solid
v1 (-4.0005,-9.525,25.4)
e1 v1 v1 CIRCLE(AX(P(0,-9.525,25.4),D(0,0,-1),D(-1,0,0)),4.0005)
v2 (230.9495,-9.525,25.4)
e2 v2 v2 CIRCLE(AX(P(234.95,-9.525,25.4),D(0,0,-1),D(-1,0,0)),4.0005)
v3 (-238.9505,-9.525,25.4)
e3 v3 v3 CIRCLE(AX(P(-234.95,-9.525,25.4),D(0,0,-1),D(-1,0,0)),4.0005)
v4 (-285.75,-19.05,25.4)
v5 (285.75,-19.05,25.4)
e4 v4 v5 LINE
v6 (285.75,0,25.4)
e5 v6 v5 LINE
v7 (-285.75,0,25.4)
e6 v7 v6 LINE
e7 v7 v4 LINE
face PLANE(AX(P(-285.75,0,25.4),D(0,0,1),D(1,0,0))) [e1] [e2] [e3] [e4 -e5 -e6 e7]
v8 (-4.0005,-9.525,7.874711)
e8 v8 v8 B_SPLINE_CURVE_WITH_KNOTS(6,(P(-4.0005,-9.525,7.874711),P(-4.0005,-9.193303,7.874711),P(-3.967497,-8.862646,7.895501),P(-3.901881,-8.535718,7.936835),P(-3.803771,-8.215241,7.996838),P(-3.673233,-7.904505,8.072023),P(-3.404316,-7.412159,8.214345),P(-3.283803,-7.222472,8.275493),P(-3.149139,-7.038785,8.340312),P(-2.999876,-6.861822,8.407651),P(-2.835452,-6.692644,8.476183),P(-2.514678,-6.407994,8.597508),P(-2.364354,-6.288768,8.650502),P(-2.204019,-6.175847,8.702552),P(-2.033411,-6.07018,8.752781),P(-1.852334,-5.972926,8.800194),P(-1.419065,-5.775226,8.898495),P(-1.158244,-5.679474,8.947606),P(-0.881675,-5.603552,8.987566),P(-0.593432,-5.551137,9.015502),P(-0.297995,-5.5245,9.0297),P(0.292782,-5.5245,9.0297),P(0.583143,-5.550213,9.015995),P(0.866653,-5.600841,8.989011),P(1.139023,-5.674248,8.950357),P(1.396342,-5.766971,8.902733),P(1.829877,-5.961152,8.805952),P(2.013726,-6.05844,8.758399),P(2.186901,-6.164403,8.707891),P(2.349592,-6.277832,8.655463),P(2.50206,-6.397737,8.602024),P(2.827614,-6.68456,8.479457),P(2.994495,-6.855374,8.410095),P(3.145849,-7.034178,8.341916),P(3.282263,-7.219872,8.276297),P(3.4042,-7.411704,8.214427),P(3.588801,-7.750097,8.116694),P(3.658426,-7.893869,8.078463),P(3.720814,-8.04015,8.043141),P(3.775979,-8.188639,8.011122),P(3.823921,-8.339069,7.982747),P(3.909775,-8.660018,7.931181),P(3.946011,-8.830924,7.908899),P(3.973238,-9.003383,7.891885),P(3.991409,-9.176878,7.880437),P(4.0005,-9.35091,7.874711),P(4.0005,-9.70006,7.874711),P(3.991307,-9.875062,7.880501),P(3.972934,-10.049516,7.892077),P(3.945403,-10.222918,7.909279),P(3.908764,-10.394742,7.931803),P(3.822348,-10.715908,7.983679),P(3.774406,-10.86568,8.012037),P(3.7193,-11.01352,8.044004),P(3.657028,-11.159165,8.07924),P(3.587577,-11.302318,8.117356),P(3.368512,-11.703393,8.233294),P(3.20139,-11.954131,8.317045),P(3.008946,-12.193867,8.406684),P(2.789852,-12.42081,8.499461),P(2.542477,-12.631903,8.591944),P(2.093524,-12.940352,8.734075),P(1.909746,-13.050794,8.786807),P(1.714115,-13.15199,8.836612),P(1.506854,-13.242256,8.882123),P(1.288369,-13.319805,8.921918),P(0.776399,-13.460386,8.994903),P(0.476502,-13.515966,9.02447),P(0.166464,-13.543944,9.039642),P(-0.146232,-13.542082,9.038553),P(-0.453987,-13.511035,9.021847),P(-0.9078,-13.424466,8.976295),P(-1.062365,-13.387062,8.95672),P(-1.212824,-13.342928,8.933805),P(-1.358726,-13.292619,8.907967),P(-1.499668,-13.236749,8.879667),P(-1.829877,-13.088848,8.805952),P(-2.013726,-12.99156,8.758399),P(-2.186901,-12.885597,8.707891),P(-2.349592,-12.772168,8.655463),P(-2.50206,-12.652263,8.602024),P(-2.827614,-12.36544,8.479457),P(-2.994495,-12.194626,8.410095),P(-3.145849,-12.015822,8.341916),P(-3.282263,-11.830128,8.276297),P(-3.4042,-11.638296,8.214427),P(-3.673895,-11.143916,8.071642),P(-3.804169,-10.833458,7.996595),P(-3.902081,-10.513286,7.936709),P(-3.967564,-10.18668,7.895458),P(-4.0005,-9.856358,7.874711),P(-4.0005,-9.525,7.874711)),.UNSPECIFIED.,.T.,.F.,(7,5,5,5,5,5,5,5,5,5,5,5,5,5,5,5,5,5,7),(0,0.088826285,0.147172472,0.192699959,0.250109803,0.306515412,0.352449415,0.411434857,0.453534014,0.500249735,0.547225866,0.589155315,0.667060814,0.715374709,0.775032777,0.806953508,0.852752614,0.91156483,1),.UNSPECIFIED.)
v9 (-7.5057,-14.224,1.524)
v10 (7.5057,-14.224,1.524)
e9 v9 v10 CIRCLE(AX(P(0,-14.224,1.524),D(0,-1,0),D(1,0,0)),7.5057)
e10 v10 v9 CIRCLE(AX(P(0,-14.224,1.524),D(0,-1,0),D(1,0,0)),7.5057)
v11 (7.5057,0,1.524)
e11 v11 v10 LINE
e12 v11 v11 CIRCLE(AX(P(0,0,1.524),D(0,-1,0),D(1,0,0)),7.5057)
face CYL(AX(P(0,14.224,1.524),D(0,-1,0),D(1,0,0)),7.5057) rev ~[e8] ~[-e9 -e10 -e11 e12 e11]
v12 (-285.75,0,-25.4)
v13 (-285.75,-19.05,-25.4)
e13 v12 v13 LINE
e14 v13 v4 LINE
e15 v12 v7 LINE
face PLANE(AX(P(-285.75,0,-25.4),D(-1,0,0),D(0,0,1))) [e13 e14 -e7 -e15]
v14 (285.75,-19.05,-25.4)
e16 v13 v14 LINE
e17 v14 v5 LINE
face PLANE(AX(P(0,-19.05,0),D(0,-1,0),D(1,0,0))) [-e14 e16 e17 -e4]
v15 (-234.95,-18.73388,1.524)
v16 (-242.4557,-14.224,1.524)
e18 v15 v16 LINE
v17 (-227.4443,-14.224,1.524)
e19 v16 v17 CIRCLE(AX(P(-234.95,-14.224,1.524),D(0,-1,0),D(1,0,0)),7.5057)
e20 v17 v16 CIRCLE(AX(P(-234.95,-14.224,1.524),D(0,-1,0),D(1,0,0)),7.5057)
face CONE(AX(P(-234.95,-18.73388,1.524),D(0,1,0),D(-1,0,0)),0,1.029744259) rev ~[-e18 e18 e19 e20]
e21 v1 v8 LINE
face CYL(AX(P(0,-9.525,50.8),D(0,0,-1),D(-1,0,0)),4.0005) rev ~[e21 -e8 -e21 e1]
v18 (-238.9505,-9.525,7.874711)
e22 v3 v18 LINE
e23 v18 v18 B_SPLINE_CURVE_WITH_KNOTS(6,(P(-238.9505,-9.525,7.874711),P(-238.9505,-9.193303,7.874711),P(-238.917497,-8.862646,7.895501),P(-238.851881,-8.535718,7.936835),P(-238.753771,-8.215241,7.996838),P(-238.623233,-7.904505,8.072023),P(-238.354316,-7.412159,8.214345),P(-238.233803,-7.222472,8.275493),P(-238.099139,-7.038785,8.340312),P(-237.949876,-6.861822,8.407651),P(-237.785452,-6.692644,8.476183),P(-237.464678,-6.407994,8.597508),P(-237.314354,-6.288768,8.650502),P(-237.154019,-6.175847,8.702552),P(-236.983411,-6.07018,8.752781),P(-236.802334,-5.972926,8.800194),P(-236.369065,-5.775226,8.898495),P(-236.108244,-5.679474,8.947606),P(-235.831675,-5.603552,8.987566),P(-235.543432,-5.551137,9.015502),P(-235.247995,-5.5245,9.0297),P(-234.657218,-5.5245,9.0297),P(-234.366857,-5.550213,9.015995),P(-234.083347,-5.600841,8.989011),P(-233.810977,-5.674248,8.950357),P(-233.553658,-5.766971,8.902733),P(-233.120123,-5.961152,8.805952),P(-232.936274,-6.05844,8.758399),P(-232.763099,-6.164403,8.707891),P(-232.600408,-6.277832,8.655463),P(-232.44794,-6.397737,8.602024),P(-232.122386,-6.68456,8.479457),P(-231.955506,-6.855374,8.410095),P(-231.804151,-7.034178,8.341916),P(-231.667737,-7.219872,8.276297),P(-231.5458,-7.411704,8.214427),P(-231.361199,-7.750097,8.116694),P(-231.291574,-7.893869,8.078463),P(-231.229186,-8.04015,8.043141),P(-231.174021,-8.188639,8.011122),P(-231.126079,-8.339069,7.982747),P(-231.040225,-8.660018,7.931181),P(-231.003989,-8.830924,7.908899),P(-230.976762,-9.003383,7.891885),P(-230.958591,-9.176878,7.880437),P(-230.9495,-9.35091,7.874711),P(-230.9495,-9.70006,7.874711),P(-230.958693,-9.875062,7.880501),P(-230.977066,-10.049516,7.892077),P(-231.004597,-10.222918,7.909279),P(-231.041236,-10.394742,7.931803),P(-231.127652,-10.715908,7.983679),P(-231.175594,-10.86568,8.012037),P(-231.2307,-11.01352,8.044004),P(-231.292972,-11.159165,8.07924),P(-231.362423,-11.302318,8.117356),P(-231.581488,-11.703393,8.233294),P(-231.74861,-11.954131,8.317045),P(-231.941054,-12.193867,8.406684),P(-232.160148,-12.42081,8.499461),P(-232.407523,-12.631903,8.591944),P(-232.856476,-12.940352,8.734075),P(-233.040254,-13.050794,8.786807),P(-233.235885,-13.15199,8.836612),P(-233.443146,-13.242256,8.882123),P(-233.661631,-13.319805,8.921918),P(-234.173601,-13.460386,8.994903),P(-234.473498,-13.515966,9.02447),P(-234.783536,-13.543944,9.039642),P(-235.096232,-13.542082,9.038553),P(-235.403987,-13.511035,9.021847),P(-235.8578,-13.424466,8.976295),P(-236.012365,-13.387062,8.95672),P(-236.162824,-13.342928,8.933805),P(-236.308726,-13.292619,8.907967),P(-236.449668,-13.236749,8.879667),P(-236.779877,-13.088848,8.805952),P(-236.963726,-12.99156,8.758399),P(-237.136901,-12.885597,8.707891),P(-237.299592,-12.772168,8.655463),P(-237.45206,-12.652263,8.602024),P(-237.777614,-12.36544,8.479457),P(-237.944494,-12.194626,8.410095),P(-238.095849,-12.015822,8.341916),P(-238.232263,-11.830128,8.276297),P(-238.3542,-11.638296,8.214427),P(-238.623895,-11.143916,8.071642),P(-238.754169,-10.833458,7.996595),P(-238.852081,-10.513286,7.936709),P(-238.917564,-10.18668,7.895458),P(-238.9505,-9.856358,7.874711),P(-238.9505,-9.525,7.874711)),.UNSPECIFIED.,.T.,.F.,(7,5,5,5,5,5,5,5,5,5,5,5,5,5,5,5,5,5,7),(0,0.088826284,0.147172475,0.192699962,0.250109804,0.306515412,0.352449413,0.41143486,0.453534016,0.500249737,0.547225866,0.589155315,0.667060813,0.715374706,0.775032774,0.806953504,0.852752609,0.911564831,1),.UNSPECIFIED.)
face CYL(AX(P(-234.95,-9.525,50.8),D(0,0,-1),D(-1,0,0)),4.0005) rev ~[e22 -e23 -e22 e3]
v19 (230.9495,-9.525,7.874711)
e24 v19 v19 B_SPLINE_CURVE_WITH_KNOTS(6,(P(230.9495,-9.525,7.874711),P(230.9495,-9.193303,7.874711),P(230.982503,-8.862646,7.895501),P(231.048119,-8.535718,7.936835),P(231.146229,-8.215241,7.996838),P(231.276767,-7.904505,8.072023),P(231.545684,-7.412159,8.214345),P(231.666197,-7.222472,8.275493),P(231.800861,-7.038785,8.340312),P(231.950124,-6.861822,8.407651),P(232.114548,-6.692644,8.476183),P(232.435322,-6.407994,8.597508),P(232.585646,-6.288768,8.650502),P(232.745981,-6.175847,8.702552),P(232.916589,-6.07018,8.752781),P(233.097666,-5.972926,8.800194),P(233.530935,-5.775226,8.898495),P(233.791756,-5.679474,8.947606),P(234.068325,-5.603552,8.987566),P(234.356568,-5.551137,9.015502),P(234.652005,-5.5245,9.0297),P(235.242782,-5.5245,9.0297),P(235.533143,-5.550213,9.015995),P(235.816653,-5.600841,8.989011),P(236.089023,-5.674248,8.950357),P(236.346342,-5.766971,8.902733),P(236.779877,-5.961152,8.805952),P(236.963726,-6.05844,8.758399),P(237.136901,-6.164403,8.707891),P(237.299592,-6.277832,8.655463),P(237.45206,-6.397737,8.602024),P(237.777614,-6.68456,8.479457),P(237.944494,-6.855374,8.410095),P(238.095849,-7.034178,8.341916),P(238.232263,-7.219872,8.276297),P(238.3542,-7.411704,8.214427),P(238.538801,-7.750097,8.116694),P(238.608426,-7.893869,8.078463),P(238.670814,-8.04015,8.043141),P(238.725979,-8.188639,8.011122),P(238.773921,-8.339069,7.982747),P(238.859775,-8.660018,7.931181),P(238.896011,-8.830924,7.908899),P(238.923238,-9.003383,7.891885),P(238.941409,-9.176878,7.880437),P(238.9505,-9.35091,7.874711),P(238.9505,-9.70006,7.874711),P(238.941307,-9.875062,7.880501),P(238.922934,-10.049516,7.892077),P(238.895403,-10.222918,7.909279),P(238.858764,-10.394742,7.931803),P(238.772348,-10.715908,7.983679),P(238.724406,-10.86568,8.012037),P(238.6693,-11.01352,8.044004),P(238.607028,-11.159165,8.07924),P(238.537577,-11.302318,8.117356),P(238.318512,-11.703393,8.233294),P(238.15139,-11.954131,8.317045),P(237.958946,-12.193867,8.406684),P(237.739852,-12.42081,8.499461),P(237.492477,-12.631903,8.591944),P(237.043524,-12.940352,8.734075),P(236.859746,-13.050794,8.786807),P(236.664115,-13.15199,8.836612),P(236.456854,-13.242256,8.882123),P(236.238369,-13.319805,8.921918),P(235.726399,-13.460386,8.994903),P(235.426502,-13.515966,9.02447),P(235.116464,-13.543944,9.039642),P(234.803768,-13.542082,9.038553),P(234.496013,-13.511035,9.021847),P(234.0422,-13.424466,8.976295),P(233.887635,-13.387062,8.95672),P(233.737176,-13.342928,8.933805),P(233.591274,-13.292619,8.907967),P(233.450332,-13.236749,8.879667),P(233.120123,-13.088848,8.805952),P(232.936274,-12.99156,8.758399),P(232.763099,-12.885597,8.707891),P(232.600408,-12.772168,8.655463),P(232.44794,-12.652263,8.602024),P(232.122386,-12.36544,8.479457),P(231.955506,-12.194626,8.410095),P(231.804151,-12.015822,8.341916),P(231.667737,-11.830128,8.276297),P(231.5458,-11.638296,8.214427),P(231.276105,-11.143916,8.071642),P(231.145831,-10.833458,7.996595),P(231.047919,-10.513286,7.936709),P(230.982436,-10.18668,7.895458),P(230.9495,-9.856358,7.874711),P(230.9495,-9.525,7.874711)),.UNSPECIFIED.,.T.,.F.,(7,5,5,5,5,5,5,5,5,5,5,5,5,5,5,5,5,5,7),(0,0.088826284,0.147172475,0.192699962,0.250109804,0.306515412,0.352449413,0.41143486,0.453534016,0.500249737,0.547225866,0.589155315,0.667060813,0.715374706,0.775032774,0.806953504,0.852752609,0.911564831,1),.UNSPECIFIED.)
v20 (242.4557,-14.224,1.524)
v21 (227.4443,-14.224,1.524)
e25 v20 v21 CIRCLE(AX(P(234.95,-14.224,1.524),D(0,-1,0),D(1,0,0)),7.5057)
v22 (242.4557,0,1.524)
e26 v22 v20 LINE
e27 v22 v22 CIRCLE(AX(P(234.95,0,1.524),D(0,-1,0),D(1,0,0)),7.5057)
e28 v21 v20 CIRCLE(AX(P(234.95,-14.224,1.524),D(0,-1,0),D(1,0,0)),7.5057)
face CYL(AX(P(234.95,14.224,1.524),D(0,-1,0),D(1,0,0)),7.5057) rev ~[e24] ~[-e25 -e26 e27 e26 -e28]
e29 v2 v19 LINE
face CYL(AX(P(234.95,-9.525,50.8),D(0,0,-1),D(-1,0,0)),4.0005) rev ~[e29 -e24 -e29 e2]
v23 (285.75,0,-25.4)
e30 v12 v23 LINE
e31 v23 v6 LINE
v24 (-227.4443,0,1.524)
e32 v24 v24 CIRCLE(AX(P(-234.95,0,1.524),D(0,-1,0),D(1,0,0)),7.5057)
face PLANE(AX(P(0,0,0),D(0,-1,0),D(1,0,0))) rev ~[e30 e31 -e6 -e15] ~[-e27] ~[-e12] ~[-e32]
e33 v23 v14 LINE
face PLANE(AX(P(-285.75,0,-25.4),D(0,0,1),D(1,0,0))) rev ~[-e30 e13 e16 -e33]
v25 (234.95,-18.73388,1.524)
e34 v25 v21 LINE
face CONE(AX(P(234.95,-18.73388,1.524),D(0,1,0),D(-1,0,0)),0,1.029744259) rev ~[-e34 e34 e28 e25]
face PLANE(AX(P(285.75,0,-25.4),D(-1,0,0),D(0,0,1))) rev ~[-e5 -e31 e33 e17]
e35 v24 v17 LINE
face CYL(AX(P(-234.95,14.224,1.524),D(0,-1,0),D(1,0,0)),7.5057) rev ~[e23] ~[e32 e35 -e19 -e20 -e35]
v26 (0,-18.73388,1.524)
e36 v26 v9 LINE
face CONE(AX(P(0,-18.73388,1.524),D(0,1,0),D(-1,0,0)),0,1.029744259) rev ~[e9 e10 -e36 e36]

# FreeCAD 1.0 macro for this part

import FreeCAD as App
import Part
import Sketcher
from FreeCAD import Vector
Q = App.Units.Quantity


def add_polygon(sketch, points):
    """Adds a closed chain of lines whose ends are joined by coincident constraints."""
    first, n = sketch.GeometryCount, len(points)
    for a, b in zip(points, points[1:] + points[:1]):
        sketch.addGeometry(Part.LineSegment(App.Vector(*a, 0), App.Vector(*b, 0)), False)
    for i in range(n):
        sketch.addConstraint(Sketcher.Constraint("Coincident", first + i, 2, first + (i + 1) % n, 1))

doc = App.newDocument("Part")
params = doc.addObject("Spreadsheet::Sheet", "Params")
for row, (alias, value) in enumerate([
    ("sketch1_height", "2 in"),
    ("sketch1_width", "22.5 in"),
    ("pad1_length", "0.75 in"),
    ("sketch2_diameter", "0.591 in"),
    ("hole_diameter", "0.591 in"),
    ("hole_depth", "0.56 in"),
    ("sketch3_diameter", "0.315 in"),
    ("hole2_diameter", "0.315 in"),
    ("hole2_depth", "1 in"),
], start=1):
    params.set(f"A{row}", alias)
    params.set(f"B{row}", "=" + value)
    params.setAlias(f"B{row}", alias)

body = doc.addObject("PartDesign::Body", "Body")

# Sketch on XZ plane
sketch1 = body.newObject("Sketcher::SketchObject", "Sketch")
sketch1.AttachmentSupport = (doc.getObject("XZ_Plane"), [""])
sketch1.MapMode = "FlatFace"
add_polygon(sketch1, [(-285.75, 25.4), (-285.75, -25.4), (285.75, -25.4), (285.75, 25.4)])  # lines 0-3
sketch1.addConstraint([
    Sketcher.Constraint("Vertical", 0),
    Sketcher.Constraint("Horizontal", 1),
    Sketcher.Constraint("Vertical", 2),
    Sketcher.Constraint("Horizontal", 3),
    Sketcher.Constraint("Symmetric", 0, 2, 2, 2, -1, 1),
    Sketcher.Constraint("DistanceY", 0, 2, 0, 1, Q("2 in")),
    Sketcher.Constraint("DistanceX", 1, 1, 1, 2, Q("22.5 in")),
])
sketch1.setExpression("Constraints[9]", "Params.sketch1_height")
sketch1.setExpression("Constraints[10]", "Params.sketch1_width")
pad1 = body.newObject("PartDesign::Pad", "Pad")
pad1.Profile = sketch1
pad1.setExpression("Length", "Params.pad1_length")

# Sketch on XZ plane
sketch2 = body.newObject("Sketcher::SketchObject", "Sketch001")
sketch2.AttachmentSupport = (doc.getObject("XZ_Plane"), [""])
sketch2.MapMode = "FlatFace"
sketch2.addGeometry([
    Part.Circle(Vector(-234.95, 1.524, 0), Vector(0, 0, 1), 7.5057),
    Part.Circle(Vector(0, 1.524, 0), Vector(0, 0, 1), 7.5057),
    Part.Circle(Vector(234.95, 1.524, 0), Vector(0, 0, 1), 7.5057),
], False)
sketch2.addConstraint([
    Sketcher.Constraint("Equal", 0, 1),
    Sketcher.Constraint("Equal", 1, 2),
    Sketcher.Constraint("Symmetric", 0, 3, 2, 3, -2),
    Sketcher.Constraint("PointOnObject", 1, 3, -2),
    Sketcher.Constraint("Horizontal", 0, 3, 1, 3),
    Sketcher.Constraint("Diameter", 0, Q("0.591 in")),
    Sketcher.Constraint("DistanceX", 0, 3, 2, 3, Q("18.5 in")),
    Sketcher.Constraint("DistanceY", -1, 1, 0, 3, Q("0.06 in")),
])
sketch2.setExpression("Constraints[5]", "Params.sketch2_diameter")
doc.recompute()
hole = body.newObject("PartDesign::Hole", "Hole")
hole.Profile = sketch2
hole.ThreadType = "None"
hole.setExpression("Diameter", "Params.hole_diameter")
hole.DepthType = "Dimension"
hole.setExpression("Depth", "Params.hole_depth")
hole.DrillPoint = "Angled"
hole.DrillPointAngle = 118
hole.Reversed = True

# Sketch on XY plane
sketch3 = body.newObject("Sketcher::SketchObject", "Sketch002")
sketch3.AttachmentSupport = (doc.getObject("XY_Plane"), [""])
sketch3.MapMode = "FlatFace"
sketch3.AttachmentOffset = App.Placement(Vector(0, 0, 1 * 25.4), App.Rotation())
sketch3.addGeometry([
    Part.Circle(Vector(-234.95, -9.525, 0), Vector(0, 0, 1), 4.0005),
    Part.Circle(Vector(0, -9.525, 0), Vector(0, 0, 1), 4.0005),
    Part.Circle(Vector(234.95, -9.525, 0), Vector(0, 0, 1), 4.0005),
], False)
sketch3.addConstraint([
    Sketcher.Constraint("Equal", 0, 1),
    Sketcher.Constraint("Equal", 1, 2),
    Sketcher.Constraint("Symmetric", 0, 3, 2, 3, -2),
    Sketcher.Constraint("PointOnObject", 1, 3, -2),
    Sketcher.Constraint("Horizontal", 0, 3, 1, 3),
    Sketcher.Constraint("Diameter", 0, Q("0.315 in")),
    Sketcher.Constraint("DistanceX", 0, 3, 2, 3, Q("18.5 in")),
    Sketcher.Constraint("DistanceY", 0, 3, -1, 1, Q("0.375 in")),
])
sketch3.setExpression("Constraints[5]", "Params.sketch3_diameter")
doc.recompute()
hole2 = body.newObject("PartDesign::Hole", "Hole001")
hole2.Profile = sketch3
hole2.ThreadType = "None"
hole2.setExpression("Diameter", "Params.hole2_diameter")
hole2.DepthType = "Dimension"
hole2.setExpression("Depth", "Params.hole2_depth")
hole2.DrillPoint = "Angled"
hole2.DrillPointAngle = 118

doc.recompute()
